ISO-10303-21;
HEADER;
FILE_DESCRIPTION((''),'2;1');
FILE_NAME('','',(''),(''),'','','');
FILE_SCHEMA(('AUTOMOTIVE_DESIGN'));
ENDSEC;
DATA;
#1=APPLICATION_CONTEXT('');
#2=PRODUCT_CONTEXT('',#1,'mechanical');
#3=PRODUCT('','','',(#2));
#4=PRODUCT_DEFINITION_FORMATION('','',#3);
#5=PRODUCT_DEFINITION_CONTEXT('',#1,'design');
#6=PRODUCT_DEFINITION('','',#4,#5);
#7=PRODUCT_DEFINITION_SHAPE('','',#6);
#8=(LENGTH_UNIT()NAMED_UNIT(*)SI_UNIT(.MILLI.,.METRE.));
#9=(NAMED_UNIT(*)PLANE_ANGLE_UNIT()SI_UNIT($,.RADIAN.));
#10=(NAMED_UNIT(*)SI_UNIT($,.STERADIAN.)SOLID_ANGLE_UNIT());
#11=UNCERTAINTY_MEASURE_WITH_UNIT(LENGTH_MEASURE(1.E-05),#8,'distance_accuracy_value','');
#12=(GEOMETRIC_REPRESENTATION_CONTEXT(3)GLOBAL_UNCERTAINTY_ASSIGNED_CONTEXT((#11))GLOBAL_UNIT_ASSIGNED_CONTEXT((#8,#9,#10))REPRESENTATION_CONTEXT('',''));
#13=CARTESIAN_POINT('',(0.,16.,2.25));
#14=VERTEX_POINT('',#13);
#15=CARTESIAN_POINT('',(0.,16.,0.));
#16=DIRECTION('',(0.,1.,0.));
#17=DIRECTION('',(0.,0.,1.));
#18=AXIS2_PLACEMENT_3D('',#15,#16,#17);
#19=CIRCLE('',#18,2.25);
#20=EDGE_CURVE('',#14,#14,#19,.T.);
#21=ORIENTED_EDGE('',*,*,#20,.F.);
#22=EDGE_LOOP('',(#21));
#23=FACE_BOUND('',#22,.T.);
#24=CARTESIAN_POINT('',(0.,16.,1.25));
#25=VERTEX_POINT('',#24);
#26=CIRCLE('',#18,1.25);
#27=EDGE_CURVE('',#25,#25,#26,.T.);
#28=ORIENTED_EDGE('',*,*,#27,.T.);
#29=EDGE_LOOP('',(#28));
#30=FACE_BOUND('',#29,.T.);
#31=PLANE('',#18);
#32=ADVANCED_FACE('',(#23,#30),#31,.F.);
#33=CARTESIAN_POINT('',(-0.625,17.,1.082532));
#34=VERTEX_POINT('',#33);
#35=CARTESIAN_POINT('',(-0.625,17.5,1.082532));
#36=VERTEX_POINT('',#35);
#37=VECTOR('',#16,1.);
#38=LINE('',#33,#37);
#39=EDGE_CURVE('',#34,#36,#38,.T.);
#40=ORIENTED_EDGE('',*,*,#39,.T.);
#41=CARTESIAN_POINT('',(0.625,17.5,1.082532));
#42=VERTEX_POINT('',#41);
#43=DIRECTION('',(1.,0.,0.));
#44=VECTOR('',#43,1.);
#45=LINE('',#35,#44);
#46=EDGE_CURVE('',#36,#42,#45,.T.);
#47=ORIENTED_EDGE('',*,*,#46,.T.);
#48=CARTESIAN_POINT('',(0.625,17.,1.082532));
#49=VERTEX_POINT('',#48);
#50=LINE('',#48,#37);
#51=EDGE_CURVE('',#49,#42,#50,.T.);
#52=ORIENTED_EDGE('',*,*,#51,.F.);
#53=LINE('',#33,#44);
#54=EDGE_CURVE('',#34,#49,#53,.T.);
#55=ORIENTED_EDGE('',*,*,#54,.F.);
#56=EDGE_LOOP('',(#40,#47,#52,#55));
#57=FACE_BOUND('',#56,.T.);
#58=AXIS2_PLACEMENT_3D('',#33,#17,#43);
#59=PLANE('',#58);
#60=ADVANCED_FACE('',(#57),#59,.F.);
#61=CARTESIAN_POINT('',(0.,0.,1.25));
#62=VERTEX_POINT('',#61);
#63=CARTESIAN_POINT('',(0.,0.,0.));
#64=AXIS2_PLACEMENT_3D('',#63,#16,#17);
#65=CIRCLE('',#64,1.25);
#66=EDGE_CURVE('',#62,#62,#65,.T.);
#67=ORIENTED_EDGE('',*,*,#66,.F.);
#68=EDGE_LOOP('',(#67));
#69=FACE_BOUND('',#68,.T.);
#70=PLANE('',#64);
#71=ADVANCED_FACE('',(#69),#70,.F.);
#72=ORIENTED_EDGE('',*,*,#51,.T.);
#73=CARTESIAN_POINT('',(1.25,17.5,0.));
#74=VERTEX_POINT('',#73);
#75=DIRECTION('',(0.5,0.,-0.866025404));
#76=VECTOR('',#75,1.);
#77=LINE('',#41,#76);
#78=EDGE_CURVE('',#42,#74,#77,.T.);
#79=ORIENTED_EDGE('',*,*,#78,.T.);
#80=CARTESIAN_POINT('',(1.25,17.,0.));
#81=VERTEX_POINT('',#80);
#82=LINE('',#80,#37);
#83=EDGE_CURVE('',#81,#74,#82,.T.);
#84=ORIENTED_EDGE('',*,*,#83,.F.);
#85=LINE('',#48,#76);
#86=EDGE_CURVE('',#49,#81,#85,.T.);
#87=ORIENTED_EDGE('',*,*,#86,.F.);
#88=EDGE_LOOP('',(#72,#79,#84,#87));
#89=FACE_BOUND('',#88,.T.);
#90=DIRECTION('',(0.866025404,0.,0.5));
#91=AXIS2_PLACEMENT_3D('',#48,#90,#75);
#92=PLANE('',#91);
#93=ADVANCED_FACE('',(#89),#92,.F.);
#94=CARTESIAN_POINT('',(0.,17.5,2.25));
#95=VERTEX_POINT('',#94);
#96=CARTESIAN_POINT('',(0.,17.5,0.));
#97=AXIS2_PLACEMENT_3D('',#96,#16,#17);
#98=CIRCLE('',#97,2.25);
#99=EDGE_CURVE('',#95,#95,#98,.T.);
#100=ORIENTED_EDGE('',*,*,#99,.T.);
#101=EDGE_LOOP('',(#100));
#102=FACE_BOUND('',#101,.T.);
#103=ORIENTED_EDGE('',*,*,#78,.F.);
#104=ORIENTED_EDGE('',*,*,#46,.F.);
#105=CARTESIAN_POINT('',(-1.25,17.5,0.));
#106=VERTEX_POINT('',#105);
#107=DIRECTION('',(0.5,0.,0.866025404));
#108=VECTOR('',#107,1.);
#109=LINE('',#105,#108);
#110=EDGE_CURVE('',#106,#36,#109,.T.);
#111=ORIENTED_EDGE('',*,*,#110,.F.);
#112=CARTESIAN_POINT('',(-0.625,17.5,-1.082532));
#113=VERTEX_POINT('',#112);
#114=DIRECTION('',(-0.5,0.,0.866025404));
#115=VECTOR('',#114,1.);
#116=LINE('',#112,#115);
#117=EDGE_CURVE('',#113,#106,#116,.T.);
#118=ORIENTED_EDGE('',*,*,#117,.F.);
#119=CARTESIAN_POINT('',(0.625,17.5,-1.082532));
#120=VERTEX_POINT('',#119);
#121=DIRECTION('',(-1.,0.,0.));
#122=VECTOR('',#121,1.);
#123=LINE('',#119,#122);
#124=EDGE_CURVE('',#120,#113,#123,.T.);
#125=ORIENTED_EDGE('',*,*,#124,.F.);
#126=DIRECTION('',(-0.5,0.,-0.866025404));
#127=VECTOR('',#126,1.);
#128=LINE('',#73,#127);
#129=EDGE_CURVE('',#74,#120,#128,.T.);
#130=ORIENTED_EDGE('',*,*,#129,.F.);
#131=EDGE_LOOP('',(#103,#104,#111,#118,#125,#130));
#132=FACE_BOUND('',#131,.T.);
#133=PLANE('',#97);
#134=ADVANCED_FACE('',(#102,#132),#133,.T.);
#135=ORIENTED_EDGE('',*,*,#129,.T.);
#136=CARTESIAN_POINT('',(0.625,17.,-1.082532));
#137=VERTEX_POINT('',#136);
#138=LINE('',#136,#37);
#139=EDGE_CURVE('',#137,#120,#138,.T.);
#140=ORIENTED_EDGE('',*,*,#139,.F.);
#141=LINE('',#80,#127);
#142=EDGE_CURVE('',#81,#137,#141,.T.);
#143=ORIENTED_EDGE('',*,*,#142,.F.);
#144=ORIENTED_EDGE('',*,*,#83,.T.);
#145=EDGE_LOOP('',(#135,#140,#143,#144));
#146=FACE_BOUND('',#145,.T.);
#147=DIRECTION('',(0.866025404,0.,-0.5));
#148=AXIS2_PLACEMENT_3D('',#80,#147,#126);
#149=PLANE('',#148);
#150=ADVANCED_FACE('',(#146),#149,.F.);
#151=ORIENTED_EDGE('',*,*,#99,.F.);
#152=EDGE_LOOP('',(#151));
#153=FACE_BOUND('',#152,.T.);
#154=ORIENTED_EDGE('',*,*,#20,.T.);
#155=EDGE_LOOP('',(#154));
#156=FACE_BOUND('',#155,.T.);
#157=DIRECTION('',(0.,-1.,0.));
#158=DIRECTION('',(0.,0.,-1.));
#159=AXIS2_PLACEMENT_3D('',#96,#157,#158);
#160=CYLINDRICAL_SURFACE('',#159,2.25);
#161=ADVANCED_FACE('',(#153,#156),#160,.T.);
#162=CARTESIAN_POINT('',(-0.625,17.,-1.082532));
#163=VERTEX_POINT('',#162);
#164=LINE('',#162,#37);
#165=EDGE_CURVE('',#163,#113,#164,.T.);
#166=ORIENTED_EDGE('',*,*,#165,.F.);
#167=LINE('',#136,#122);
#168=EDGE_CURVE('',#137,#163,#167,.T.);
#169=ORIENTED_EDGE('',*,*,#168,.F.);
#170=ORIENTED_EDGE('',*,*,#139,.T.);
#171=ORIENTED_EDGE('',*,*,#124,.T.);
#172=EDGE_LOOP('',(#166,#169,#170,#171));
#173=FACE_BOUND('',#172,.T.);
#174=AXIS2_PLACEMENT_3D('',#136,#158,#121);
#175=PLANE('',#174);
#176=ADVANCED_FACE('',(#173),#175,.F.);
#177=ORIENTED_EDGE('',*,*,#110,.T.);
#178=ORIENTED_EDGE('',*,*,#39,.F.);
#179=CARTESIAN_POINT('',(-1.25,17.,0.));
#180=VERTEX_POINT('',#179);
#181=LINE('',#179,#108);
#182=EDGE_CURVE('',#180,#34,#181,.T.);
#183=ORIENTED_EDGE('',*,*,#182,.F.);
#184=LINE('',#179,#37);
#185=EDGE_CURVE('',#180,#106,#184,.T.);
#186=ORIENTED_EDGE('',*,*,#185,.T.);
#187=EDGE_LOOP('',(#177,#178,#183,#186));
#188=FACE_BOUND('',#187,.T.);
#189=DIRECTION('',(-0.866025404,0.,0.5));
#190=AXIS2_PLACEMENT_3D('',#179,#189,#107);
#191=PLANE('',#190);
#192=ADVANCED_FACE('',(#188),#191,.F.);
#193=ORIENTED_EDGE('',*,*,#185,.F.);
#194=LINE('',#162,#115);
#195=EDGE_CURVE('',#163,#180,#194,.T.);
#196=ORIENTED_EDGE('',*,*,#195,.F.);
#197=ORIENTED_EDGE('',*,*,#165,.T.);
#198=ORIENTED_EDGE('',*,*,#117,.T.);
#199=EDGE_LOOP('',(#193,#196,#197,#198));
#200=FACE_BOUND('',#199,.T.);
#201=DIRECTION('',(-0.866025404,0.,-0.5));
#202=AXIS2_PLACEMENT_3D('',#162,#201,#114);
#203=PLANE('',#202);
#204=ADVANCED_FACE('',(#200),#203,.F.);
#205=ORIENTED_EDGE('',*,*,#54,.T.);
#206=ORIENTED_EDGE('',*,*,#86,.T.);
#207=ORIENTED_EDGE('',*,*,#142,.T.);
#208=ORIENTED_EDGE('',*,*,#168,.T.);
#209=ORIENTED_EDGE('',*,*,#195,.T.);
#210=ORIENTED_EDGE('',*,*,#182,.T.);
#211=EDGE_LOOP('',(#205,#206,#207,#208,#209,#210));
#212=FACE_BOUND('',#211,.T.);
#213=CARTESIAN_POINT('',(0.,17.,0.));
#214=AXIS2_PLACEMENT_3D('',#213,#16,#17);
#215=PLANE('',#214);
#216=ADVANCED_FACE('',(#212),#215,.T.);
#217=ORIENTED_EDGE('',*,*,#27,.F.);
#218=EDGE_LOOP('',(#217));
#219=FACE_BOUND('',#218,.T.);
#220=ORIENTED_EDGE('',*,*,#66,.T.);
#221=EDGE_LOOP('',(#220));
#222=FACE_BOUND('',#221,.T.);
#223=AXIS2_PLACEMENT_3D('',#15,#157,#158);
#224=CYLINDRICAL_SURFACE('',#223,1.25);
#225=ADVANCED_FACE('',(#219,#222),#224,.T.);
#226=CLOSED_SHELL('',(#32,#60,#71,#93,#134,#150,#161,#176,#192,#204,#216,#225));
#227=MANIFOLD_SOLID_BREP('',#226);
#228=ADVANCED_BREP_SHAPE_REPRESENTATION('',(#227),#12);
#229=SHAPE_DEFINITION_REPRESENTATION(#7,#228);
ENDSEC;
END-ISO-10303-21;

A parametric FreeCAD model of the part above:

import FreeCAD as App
import Part
import Sketcher
from FreeCAD import Vector
Q = App.Units.Quantity


def add_polygon(sketch, points):
    """Adds a closed chain of lines whose ends are joined by coincident constraints."""
    first, n = sketch.GeometryCount, len(points)
    for a, b in zip(points, points[1:] + points[:1]):
        sketch.addGeometry(Part.LineSegment(App.Vector(*a, 0), App.Vector(*b, 0)), False)
    for i in range(n):
        sketch.addConstraint(Sketcher.Constraint("Coincident", first + i, 2, first + (i + 1) % n, 1))

doc = App.newDocument("Part")
body = doc.addObject("PartDesign::Body", "Body")

sketch1 = body.newObject("Sketcher::SketchObject", "Sketch")
sketch1.AttachmentSupport = (doc.getObject("XZ_Plane"), [""])
sketch1.MapMode = "FlatFace"
sketch1.addGeometry(Part.Circle(Vector(0, 0, 0), Vector(0, 0, 1), 1.2), False)
sketch1.addConstraint(Sketcher.Constraint("Coincident", 0, 3, -1, 1))
sketch1.addConstraint(Sketcher.Constraint("Diameter", 0, 2.5))
pad1 = body.newObject("PartDesign::Pad", "Pad")
pad1.Profile = sketch1
pad1.Length = 16
pad1.Reversed = True

sketch2 = body.newObject("Sketcher::SketchObject", "Sketch001")
sketch2.AttachmentSupport = (doc.getObject("XZ_Plane"), [""])
sketch2.MapMode = "FlatFace"
sketch2.AttachmentOffset = App.Placement(Vector(0, 0, -16), App.Rotation())
sketch2.addGeometry(Part.Circle(Vector(0, 0, 0), Vector(0, 0, 1), 2.2), False)
sketch2.addConstraint(Sketcher.Constraint("Coincident", 0, 3, -1, 1))
sketch2.addConstraint(Sketcher.Constraint("Diameter", 0, 4.5))
pad2 = body.newObject("PartDesign::Pad", "Pad001")
pad2.Profile = sketch2
pad2.Length = 1.5
pad2.Reversed = True

sketch3 = body.newObject("Sketcher::SketchObject", "Sketch002")
sketch3.AttachmentSupport = (doc.getObject("XZ_Plane"), [""])
sketch3.MapMode = "FlatFace"
sketch3.AttachmentOffset = App.Placement(Vector(0, 0, -17.5), App.Rotation())
add_polygon(sketch3, [(1.2, 0), (0.6, -1.1), (-0.6, -1.1), (-1.2, 0), (-0.6, 1.1), (0.6, 1.1)])
sketch3.addConstraint(Sketcher.Constraint("Horizontal", 1))
sketch3.addConstraint(Sketcher.Constraint("Horizontal", 4))
sketch3.addConstraint(Sketcher.Constraint("Symmetric", 0, 2, 3, 2, -1, 1))
sketch3.addConstraint(Sketcher.Constraint("Symmetric", 2, 2, 5, 2, -1, 1))
sketch3.addConstraint(Sketcher.Constraint("PointOnObject", 2, 2, -1))
sketch3.addConstraint(Sketcher.Constraint("Parallel", 2, 5))
sketch3.addConstraint(Sketcher.Constraint("Vertical", 1, 2, 3, 2))
sketch3.addConstraint(Sketcher.Constraint("Angle", 0, Q("-120 deg")))
sketch3.addConstraint(Sketcher.Constraint("DistanceX", 1, 2, 1, 1, 1.25))
sketch3.addConstraint(Sketcher.Constraint("DistanceX", 2, 2, 5, 2, 2.5))
pocket1 = body.newObject("PartDesign::Pocket", "Pocket")
pocket1.Profile = sketch3
pocket1.Length = 0.5
pocket1.Reversed = True

doc.recompute()
